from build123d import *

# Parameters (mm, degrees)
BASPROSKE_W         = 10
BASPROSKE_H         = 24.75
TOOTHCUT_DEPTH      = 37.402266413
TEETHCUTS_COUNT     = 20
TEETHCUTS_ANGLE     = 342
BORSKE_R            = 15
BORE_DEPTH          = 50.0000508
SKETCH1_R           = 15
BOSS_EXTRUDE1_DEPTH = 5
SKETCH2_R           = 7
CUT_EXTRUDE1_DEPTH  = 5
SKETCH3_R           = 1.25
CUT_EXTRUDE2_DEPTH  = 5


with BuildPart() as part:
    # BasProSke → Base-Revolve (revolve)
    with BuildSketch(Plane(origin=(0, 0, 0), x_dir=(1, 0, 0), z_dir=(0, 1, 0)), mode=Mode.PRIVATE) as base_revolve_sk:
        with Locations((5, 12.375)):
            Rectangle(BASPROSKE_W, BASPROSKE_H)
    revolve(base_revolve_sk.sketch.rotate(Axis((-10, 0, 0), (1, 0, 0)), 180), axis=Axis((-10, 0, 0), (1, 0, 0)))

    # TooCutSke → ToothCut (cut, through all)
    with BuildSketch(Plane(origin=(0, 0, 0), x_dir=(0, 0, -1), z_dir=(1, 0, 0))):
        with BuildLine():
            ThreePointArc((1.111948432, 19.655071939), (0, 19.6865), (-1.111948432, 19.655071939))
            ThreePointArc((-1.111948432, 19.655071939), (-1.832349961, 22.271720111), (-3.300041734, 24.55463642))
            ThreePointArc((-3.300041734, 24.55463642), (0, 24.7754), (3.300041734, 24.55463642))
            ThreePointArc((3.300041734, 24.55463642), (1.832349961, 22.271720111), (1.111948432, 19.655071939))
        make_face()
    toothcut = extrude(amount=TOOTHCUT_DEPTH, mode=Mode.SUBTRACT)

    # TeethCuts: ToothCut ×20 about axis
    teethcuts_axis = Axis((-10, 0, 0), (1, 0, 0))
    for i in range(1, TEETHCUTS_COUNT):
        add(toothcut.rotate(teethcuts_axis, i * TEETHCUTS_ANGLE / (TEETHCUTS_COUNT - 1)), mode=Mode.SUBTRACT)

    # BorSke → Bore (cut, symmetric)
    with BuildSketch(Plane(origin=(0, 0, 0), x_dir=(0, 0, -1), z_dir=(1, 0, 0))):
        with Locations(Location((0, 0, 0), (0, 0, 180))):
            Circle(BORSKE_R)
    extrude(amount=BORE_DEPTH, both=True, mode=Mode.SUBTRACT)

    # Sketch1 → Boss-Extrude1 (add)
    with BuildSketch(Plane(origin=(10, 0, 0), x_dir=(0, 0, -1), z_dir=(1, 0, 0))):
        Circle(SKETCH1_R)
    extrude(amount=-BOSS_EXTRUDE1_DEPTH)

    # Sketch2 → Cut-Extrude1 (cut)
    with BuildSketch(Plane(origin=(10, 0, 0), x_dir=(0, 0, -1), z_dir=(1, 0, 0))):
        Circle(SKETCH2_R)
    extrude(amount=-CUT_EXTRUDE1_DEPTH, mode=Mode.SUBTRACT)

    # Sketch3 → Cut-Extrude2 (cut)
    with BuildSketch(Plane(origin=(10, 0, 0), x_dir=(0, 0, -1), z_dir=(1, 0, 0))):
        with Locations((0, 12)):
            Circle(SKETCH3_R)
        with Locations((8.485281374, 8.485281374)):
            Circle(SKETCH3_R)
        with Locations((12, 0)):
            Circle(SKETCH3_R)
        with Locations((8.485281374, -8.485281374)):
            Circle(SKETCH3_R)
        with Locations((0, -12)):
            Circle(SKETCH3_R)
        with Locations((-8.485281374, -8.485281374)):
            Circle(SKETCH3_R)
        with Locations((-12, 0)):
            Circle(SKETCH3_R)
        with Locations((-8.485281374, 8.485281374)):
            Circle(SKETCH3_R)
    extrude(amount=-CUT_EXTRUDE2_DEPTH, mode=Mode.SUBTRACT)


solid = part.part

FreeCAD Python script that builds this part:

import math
import FreeCAD as App
import Part
import Sketcher
from FreeCAD import Vector
Q = App.Units.Quantity


def add_polygon(sketch, points):
    """Adds a closed chain of lines whose ends are joined by coincident constraints."""
    first, n = sketch.GeometryCount, len(points)
    for a, b in zip(points, points[1:] + points[:1]):
        sketch.addGeometry(Part.LineSegment(App.Vector(*a, 0), App.Vector(*b, 0)), False)
    for i in range(n):
        sketch.addConstraint(Sketcher.Constraint("Coincident", first + i, 2, first + (i + 1) % n, 1))

doc = App.newDocument("Part")
body = doc.addObject("PartDesign::Body", "Body")

# Sketch on XZ plane
sketch1 = doc.addObject("Sketcher::SketchObject", "Sketch")
body.addObject(sketch1)
sketch1.AttachmentSupport = (doc.XZ_Plane, [""])
sketch1.MapMode = "FlatFace"
add_polygon(sketch1, [(0, -25), (0, 0), (10, 0), (10, -25)])  # lines 0-3
sketch1.addConstraint([
    Sketcher.Constraint("Vertical", 0),
    Sketcher.Constraint("Horizontal", 1),
    Sketcher.Constraint("Vertical", 2),
    Sketcher.Constraint("Horizontal", 3),
    Sketcher.Constraint("Coincident", 0, 2, -1, 1),
    Sketcher.Constraint("DistanceX", 1, 1, 1, 2, Q("10 mm")),
    Sketcher.Constraint("DistanceY", 0, 1, 0, 2, Q("24.75 mm")),
])
revolution = doc.addObject("PartDesign::Revolution", "Revolution")
body.addObject(revolution)
revolution.Profile = sketch1
revolution.ReferenceAxis = (sketch1, ["H_Axis"])
revolution.Angle = 360

# Sketch on YZ plane
sketch2 = doc.addObject("Sketcher::SketchObject", "Sketch001")
body.addObject(sketch2)
sketch2.AttachmentSupport = (doc.YZ_Plane, [""])
sketch2.MapMode = "FlatFace"
sketch2.addGeometry([
    Part.ArcOfCircle(Part.Circle(Vector(0, 0, 0), Vector(0, 0, 1), 19.7), math.radians(-3.24), math.radians(3.24)),
    Part.ArcOfCircle(Part.Circle(Vector(18.6, -10.1, 0), Vector(0, 0, 1), 9), math.radians(49), math.radians(83)),
    Part.ArcOfCircle(Part.Circle(Vector(0, 0, 0), Vector(0, 0, 1), 24.8), math.radians(-7.65), math.radians(7.65)),
    Part.ArcOfCircle(Part.Circle(Vector(18.6, 10.1, 0), Vector(0, 0, 1), 9), math.radians(-83), math.radians(-49)),
], False)
sketch2.addConstraint([
    Sketcher.Constraint("Coincident", 0, 1, 1, 2),
    Sketcher.Constraint("Coincident", 1, 1, 2, 1),
    Sketcher.Constraint("Coincident", 2, 2, 3, 2),
    Sketcher.Constraint("Coincident", 3, 1, 0, 2),
    Sketcher.Constraint("Coincident", 0, 3, -1, 1),
    Sketcher.Constraint("Coincident", 2, 3, -1, 1),
    Sketcher.Constraint("Equal", 1, 3),
    Sketcher.Constraint("Symmetric", 1, 3, 3, 3, -1),
    Sketcher.Constraint("Radius", 1, Q("9 mm")),
    Sketcher.Constraint("Radius", 0, Q("19.6865 mm")),
    Sketcher.Constraint("Radius", 2, Q("24.7754 mm")),
    Sketcher.Constraint("DistanceY", 1, 3, -1, 1, Q("10.050099 mm")),
    Sketcher.Constraint("DistanceX", -1, 1, 1, 3, Q("18.601761 mm")),
])
pocket1 = doc.addObject("PartDesign::Pocket", "Pocket")
body.addObject(pocket1)
pocket1.Profile = sketch2
pocket1.Type = "ThroughAll"
pocket1.Reversed = True
doc.recompute()

polarpattern = doc.addObject("PartDesign::PolarPattern", "PolarPattern")
body.addObject(polarpattern)
polarpattern.Originals = [pocket1]
polarpattern.Axis = (doc.X_Axis, [""])
polarpattern.Angle = 360
polarpattern.Occurrences = 20
body.Tip = polarpattern

# Sketch on YZ plane
sketch3 = doc.addObject("Sketcher::SketchObject", "Sketch002")
body.addObject(sketch3)
sketch3.AttachmentSupport = (doc.YZ_Plane, [""])
sketch3.MapMode = "FlatFace"
sketch3.addGeometry(Part.Circle(Vector(0, 0, 0), Vector(0, 0, 1), 15), False)
sketch3.addConstraint([
    Sketcher.Constraint("Coincident", 0, 3, -1, 1),
    Sketcher.Constraint("Diameter", 0, Q("30 mm")),
])
pocket2 = doc.addObject("PartDesign::Pocket", "Pocket001")
body.addObject(pocket2)
pocket2.Profile = sketch3
pocket2.Length = 100.000102
pocket2.Midplane = True

# Sketch on YZ plane
sketch4 = doc.addObject("Sketcher::SketchObject", "Sketch003")
body.addObject(sketch4)
sketch4.AttachmentSupport = (doc.YZ_Plane, [""])
sketch4.MapMode = "FlatFace"
sketch4.AttachmentOffset = App.Placement(Vector(0, 0, 10), App.Rotation())
sketch4.addGeometry(Part.Circle(Vector(0, 0, 0), Vector(0, 0, 1), 15), False)
sketch4.addConstraint([
    Sketcher.Constraint("Coincident", 0, 3, -1, 1),
    Sketcher.Constraint("Diameter", 0, Q("30 mm")),
])
pad1 = doc.addObject("PartDesign::Pad", "Pad")
body.addObject(pad1)
pad1.Profile = sketch4
pad1.Length = 5
pad1.Reversed = True

# Sketch on YZ plane
sketch5 = doc.addObject("Sketcher::SketchObject", "Sketch004")
body.addObject(sketch5)
sketch5.AttachmentSupport = (doc.YZ_Plane, [""])
sketch5.MapMode = "FlatFace"
sketch5.AttachmentOffset = App.Placement(Vector(0, 0, 10), App.Rotation())
sketch5.addGeometry(Part.Circle(Vector(0, 0, 0), Vector(0, 0, 1), 7), False)
sketch5.addConstraint([
    Sketcher.Constraint("Coincident", 0, 3, -1, 1),
    Sketcher.Constraint("Diameter", 0, Q("14 mm")),
])
pocket3 = doc.addObject("PartDesign::Pocket", "Pocket002")
body.addObject(pocket3)
pocket3.Profile = sketch5
pocket3.Length = 5

# Sketch on YZ plane
sketch6 = doc.addObject("Sketcher::SketchObject", "Sketch005")
body.addObject(sketch6)
sketch6.AttachmentSupport = (doc.YZ_Plane, [""])
sketch6.MapMode = "FlatFace"
sketch6.AttachmentOffset = App.Placement(Vector(0, 0, 10), App.Rotation())
sketch6.addGeometry([
    Part.Circle(Vector(12, 0, 0), Vector(0, 0, 1), 1.2),  # 0
    Part.Circle(Vector(8.5, -8.5, 0), Vector(0, 0, 1), 1.2),  # 1
    Part.Circle(Vector(0, -12, 0), Vector(0, 0, 1), 1.2),  # 2
    Part.Circle(Vector(-8.5, -8.5, 0), Vector(0, 0, 1), 1.2),  # 3
    Part.Circle(Vector(-12, 0, 0), Vector(0, 0, 1), 1.2),  # 4
    Part.Circle(Vector(-8.5, 8.5, 0), Vector(0, 0, 1), 1.2),  # 5
    Part.Circle(Vector(0, 12, 0), Vector(0, 0, 1), 1.2),  # 6
    Part.Circle(Vector(8.5, 8.5, 0), Vector(0, 0, 1), 1.2),  # 7
], False)
sketch6.addConstraint([
    Sketcher.Constraint("Equal", 0, 1),
    Sketcher.Constraint("Equal", 1, 2),
    Sketcher.Constraint("Equal", 2, 3),
    Sketcher.Constraint("Equal", 3, 4),
    Sketcher.Constraint("Equal", 4, 5),
    Sketcher.Constraint("Equal", 5, 6),
    Sketcher.Constraint("Equal", 6, 7),
    Sketcher.Constraint("Symmetric", 0, 3, 4, 3, -1, 1),
    Sketcher.Constraint("Symmetric", 1, 3, 5, 3, -1, 1),
    Sketcher.Constraint("Symmetric", 2, 3, 6, 3, -1, 1),
    Sketcher.Constraint("Symmetric", 3, 3, 7, 3, -1, 1),
    Sketcher.Constraint("Symmetric", 1, 3, 3, 3, -2),
    Sketcher.Constraint("PointOnObject", 0, 3, -1),
    Sketcher.Constraint("PointOnObject", 2, 3, -2),
    Sketcher.Constraint("Diameter", 0, Q("2.5 mm")),
    Sketcher.Constraint("DistanceX", -1, 1, 0, 3, Q("12 mm")),
    Sketcher.Constraint("DistanceY", 2, 3, -1, 1, Q("12 mm")),
    Sketcher.Constraint("DistanceX", -1, 1, 1, 3, Q("8.485281 mm")),
    Sketcher.Constraint("DistanceY", 1, 3, -1, 1, Q("8.485281 mm")),
])
pocket4 = doc.addObject("PartDesign::Pocket", "Pocket003")
body.addObject(pocket4)
pocket4.Profile = sketch6
pocket4.Length = 5

doc.recompute()
